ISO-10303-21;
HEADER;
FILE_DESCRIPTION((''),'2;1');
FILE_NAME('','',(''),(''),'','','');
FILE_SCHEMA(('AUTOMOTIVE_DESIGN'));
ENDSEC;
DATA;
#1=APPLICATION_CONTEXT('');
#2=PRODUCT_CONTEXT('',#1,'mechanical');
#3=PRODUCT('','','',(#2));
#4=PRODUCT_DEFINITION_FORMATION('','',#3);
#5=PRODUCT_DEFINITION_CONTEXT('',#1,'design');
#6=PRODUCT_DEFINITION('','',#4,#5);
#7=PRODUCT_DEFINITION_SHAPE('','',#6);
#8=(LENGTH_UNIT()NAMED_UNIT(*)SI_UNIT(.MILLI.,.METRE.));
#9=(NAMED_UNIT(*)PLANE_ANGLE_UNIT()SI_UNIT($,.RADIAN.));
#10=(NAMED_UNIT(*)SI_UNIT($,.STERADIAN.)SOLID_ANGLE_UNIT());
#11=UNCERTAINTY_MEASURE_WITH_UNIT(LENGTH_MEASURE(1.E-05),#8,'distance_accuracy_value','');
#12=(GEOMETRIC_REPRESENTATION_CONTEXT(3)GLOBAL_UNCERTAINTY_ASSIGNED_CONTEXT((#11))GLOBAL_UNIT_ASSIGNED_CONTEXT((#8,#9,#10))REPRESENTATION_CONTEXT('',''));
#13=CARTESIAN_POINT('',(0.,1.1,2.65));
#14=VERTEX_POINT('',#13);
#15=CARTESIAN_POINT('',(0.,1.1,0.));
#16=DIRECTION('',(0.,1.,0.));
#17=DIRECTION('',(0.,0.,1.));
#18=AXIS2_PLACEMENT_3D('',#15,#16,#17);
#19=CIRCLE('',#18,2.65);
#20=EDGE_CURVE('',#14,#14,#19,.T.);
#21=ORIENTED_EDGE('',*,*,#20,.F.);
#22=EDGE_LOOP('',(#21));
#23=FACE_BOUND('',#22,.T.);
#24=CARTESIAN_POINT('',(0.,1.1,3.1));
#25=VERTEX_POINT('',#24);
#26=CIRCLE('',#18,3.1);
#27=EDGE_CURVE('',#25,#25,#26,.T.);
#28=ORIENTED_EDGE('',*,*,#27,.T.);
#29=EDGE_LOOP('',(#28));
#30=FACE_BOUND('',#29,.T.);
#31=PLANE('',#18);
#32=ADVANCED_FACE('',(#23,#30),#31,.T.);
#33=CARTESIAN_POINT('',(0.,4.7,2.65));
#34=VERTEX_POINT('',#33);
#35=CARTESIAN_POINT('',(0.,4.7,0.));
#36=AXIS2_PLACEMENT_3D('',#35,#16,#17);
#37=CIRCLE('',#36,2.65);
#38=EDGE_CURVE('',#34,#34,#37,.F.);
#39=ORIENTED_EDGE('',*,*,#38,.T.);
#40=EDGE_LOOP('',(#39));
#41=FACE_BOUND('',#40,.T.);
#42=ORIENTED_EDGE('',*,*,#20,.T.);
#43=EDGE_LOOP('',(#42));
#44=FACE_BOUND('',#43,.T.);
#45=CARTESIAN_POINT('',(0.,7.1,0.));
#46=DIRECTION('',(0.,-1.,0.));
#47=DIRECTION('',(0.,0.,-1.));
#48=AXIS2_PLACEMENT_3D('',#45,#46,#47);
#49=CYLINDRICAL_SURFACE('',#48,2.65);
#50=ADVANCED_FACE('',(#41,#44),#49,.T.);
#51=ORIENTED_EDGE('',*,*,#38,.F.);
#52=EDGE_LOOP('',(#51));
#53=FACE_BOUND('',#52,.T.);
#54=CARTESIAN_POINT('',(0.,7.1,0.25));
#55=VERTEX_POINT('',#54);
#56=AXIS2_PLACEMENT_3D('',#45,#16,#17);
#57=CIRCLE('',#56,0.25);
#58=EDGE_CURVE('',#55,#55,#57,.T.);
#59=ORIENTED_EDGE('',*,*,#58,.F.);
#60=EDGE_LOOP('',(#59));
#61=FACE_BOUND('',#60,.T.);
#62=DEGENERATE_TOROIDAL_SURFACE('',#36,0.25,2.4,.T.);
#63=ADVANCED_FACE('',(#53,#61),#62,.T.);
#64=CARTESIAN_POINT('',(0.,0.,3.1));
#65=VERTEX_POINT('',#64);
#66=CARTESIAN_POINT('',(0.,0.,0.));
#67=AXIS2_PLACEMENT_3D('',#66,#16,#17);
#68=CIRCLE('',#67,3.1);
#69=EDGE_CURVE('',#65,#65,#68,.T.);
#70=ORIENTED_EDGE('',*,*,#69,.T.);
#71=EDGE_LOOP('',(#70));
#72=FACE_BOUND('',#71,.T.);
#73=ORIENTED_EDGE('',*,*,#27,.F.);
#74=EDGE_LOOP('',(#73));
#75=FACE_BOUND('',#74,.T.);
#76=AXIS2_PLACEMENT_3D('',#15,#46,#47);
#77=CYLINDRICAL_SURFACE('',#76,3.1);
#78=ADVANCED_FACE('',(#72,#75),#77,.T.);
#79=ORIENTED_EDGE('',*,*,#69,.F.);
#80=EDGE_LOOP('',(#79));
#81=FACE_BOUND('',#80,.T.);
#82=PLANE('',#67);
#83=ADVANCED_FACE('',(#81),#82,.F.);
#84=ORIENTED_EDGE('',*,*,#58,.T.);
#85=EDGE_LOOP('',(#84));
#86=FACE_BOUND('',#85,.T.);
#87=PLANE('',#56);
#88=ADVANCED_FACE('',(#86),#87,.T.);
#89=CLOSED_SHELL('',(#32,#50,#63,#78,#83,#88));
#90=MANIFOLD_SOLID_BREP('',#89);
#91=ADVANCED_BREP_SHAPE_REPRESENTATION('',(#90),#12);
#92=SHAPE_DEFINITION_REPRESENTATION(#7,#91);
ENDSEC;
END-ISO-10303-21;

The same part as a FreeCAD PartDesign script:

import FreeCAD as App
import Part
import Sketcher
from FreeCAD import Vector
Q = App.Units.Quantity


def edges_at(feature, points):
    """Names of the edges that pass closest to the given points."""
    edges = feature.Shape.Edges
    near = lambda p: min(range(len(edges)), key=lambda i: edges[i].distToShape(Part.Vertex(*p))[0])
    return sorted({f"Edge{near(p) + 1}" for p in points})

doc = App.newDocument("Part")
body = doc.addObject("PartDesign::Body", "Body")

# Sketch on XZ plane
sketch1 = doc.addObject("Sketcher::SketchObject", "Sketch")
body.addObject(sketch1)
sketch1.AttachmentSupport = (doc.XZ_Plane, [""])
sketch1.MapMode = "FlatFace"
sketch1.addGeometry(Part.Circle(Vector(0, 0, 0), Vector(0, 0, 1), 3.1), False)
sketch1.addConstraint([
    Sketcher.Constraint("Coincident", 0, 3, -1, 1),
    Sketcher.Constraint("Diameter", 0, Q("6.2 mm")),
])
pad1 = doc.addObject("PartDesign::Pad", "Pad")
body.addObject(pad1)
pad1.Profile = sketch1
pad1.Length = 1.1
pad1.Reversed = True

# Sketch on XZ plane
sketch2 = doc.addObject("Sketcher::SketchObject", "Sketch001")
body.addObject(sketch2)
sketch2.AttachmentSupport = (doc.XZ_Plane, [""])
sketch2.MapMode = "FlatFace"
sketch2.AttachmentOffset = App.Placement(Vector(0, 0, -1.1), App.Rotation())
sketch2.addGeometry(Part.Circle(Vector(0, 0, 0), Vector(0, 0, 1), 2.6), False)
sketch2.addConstraint([
    Sketcher.Constraint("Coincident", 0, 3, -1, 1),
    Sketcher.Constraint("Diameter", 0, Q("5.3 mm")),
])
pad2 = doc.addObject("PartDesign::Pad", "Pad001")
body.addObject(pad2)
pad2.Profile = sketch2
pad2.Length = 6
pad2.Reversed = True
doc.recompute()

fillet = doc.addObject("PartDesign::Fillet", "Fillet")
body.addObject(fillet)
fillet.Base = (pad2, edges_at(pad2, [(-2.65, 7.1, 0)]))
fillet.Radius = 2.4

doc.recompute()
